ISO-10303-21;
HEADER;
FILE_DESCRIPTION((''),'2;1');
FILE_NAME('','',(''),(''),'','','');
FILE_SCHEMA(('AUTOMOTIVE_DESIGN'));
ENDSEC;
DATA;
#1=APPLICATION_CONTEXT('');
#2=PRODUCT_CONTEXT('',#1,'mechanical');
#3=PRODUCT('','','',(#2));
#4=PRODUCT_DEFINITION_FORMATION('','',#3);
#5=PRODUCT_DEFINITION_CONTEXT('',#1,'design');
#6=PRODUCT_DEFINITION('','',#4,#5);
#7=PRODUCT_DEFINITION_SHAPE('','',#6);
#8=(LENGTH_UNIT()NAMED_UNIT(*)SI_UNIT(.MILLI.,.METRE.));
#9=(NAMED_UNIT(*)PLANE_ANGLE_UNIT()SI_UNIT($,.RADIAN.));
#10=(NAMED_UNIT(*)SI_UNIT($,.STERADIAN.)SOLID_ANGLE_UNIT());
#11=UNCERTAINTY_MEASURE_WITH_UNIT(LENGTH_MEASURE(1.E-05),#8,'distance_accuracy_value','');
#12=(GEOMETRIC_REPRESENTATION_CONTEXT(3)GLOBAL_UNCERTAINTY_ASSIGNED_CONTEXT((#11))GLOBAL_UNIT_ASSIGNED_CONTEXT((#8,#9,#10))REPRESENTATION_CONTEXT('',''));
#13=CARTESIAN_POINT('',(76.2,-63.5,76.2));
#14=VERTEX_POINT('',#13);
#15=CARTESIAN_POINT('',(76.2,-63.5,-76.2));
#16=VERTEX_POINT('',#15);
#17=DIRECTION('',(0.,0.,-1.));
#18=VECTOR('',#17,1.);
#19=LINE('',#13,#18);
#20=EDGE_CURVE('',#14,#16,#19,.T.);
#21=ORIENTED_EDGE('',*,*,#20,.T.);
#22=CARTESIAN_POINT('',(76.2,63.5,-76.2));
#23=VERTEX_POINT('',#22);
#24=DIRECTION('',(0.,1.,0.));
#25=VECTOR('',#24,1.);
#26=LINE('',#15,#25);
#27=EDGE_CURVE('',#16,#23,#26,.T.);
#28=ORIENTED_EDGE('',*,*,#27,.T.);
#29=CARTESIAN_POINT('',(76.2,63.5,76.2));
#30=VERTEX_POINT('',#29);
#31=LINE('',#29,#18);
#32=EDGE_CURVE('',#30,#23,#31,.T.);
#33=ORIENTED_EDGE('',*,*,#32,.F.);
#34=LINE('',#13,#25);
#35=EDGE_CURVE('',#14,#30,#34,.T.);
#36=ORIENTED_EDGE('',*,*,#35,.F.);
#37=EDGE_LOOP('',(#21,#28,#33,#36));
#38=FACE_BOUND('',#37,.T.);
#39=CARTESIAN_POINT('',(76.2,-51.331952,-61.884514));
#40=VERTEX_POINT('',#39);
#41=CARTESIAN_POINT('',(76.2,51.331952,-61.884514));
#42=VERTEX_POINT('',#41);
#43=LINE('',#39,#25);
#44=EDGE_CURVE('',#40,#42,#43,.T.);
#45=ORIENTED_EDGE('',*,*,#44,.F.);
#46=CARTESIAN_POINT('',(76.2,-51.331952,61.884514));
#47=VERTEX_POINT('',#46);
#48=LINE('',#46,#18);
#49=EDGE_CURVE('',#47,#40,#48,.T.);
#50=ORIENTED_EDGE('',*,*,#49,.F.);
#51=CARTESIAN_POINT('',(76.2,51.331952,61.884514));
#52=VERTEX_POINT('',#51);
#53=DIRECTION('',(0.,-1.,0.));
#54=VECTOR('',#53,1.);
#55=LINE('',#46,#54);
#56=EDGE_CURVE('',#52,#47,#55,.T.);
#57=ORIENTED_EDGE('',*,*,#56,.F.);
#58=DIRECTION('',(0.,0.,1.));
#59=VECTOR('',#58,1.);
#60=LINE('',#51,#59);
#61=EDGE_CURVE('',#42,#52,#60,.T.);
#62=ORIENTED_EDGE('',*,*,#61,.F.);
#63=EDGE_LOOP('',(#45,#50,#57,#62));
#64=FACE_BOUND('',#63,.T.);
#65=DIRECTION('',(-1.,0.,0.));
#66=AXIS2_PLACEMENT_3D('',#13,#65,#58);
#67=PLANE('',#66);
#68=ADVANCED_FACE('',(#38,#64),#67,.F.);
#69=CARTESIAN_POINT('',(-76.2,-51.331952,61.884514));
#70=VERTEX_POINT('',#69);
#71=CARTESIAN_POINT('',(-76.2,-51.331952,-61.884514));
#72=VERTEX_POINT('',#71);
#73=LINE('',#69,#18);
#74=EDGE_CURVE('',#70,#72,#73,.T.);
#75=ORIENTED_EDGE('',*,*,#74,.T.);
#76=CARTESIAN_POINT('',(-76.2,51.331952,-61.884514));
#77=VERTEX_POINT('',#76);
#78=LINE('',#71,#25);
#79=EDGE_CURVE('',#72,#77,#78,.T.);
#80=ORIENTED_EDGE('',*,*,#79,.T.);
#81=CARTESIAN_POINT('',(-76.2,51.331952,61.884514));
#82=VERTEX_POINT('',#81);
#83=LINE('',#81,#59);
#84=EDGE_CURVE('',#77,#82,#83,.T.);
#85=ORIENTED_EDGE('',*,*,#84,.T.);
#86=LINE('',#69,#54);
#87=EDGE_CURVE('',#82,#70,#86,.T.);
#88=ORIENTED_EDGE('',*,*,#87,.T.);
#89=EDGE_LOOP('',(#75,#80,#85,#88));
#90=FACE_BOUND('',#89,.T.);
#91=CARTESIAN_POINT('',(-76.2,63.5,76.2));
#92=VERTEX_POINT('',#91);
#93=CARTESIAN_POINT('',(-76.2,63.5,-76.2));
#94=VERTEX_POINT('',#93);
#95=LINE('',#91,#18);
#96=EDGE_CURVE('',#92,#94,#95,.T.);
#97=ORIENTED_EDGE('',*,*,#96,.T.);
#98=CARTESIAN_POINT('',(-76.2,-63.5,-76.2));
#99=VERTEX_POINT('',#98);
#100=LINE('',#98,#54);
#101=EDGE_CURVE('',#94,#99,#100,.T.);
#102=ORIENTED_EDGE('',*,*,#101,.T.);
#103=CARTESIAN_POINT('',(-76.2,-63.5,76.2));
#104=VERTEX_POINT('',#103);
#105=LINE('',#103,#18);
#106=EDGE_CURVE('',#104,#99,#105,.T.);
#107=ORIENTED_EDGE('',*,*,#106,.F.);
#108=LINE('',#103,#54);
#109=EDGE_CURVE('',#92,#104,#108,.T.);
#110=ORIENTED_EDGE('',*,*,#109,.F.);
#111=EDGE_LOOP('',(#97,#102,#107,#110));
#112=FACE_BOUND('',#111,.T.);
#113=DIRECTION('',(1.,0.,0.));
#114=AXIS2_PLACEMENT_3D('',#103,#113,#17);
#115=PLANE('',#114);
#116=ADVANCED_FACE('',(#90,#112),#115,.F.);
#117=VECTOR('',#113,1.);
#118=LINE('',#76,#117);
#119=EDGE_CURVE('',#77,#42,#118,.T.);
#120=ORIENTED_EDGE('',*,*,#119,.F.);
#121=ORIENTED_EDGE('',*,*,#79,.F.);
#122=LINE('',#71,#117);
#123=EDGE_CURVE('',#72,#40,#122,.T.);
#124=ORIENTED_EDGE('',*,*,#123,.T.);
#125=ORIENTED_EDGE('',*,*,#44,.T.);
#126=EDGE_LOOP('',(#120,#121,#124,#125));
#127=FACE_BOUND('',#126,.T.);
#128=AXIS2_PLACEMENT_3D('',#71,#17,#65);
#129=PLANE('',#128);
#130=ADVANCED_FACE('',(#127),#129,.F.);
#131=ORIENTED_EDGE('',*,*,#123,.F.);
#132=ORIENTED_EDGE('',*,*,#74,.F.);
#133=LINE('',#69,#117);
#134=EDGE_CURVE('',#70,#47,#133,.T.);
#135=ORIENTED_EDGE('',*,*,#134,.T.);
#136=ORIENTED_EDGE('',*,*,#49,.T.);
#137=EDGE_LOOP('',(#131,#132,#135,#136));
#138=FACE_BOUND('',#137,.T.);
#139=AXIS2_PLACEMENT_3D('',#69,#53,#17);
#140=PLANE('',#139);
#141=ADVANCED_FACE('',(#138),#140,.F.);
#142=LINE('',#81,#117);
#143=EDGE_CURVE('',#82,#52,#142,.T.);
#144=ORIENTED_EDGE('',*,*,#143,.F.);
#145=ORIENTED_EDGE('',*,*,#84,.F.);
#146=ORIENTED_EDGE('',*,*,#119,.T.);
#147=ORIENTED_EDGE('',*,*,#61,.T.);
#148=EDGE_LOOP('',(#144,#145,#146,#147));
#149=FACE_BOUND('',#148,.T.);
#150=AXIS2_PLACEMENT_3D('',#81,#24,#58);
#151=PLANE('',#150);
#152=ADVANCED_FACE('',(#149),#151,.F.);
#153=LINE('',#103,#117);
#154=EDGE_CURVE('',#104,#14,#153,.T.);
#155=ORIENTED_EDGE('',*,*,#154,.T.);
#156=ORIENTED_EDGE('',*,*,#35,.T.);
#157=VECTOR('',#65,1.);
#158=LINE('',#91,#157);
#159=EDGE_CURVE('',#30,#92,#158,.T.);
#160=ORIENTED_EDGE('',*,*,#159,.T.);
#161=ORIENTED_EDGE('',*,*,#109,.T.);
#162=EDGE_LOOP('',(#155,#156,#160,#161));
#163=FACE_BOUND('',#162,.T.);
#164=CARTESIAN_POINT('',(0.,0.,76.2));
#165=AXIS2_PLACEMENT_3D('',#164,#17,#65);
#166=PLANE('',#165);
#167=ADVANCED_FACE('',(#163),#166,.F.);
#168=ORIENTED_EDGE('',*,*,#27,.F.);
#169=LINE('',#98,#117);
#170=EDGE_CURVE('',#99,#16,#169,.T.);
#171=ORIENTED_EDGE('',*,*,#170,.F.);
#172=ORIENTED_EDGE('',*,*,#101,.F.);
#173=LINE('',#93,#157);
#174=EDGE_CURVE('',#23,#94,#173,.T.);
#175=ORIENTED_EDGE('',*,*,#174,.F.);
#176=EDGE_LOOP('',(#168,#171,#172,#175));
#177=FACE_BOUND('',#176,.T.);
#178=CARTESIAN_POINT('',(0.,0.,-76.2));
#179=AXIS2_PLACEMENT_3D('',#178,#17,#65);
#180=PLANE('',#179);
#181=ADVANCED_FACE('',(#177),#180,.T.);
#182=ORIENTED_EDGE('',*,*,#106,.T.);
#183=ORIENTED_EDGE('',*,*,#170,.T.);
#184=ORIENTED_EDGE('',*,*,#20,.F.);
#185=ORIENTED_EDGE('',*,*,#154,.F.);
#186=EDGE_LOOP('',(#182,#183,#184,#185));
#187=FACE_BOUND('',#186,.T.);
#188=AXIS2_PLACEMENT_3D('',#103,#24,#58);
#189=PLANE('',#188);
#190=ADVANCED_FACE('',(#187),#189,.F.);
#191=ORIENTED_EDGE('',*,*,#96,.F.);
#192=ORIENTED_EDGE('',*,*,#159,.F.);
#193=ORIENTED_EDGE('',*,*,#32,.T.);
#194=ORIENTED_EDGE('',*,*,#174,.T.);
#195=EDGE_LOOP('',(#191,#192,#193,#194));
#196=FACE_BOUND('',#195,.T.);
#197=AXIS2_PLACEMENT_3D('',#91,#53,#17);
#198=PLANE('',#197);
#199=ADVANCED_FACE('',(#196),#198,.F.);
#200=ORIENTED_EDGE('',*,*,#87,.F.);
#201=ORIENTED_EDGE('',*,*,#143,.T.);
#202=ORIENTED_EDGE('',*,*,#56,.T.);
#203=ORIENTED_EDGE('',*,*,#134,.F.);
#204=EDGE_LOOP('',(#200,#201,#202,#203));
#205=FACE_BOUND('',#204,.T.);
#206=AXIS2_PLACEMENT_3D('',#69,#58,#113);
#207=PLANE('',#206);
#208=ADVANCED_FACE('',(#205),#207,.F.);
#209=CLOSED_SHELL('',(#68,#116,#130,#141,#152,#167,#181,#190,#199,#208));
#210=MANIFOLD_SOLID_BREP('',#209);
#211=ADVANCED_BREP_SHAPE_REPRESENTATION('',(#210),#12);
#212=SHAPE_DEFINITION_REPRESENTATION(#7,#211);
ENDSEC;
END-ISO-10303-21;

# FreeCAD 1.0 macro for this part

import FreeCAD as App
import Part
import Sketcher
from FreeCAD import Vector
Q = App.Units.Quantity

doc = App.newDocument("Part")
body = doc.addObject("PartDesign::Body", "Body")

# Sketch on XY plane
sketch1 = doc.addObject("Sketcher::SketchObject", "Sketch")
body.addObject(sketch1)
sketch1.AttachmentSupport = (doc.XY_Plane, [""])
sketch1.MapMode = "FlatFace"
sketch1.addGeometry(Part.LineSegment(Vector(-76, 64, 0), Vector(-76, -64, 0)), False)
sketch1.addGeometry(Part.LineSegment(Vector(-76, -64, 0), Vector(76, -64, 0)), False)
sketch1.addGeometry(Part.LineSegment(Vector(76, -64, 0), Vector(76, 64, 0)), False)
sketch1.addGeometry(Part.LineSegment(Vector(76, 64, 0), Vector(-76, 64, 0)), False)
sketch1.addConstraint(Sketcher.Constraint("Coincident", 0, 2, 1, 1))
sketch1.addConstraint(Sketcher.Constraint("Coincident", 1, 2, 2, 1))
sketch1.addConstraint(Sketcher.Constraint("Coincident", 2, 2, 3, 1))
sketch1.addConstraint(Sketcher.Constraint("Coincident", 3, 2, 0, 1))
sketch1.addConstraint(Sketcher.Constraint("Vertical", 0))
sketch1.addConstraint(Sketcher.Constraint("Horizontal", 1))
sketch1.addConstraint(Sketcher.Constraint("Vertical", 2))
sketch1.addConstraint(Sketcher.Constraint("Horizontal", 3))
sketch1.addConstraint(Sketcher.Constraint("Symmetric", 0, 2, 2, 2, -1, 1))
sketch1.addConstraint(Sketcher.Constraint("DistanceX", 1, 1, 1, 2, Q("6 in")))
sketch1.addConstraint(Sketcher.Constraint("DistanceY", 0, 2, 0, 1, Q("5 in")))
pad1 = doc.addObject("PartDesign::Pad", "Pad")
body.addObject(pad1)
pad1.Profile = sketch1
pad1.Length = Q("6 in")
pad1.Midplane = True

# Sketch on YZ plane
sketch2 = doc.addObject("Sketcher::SketchObject", "Sketch001")
body.addObject(sketch2)
sketch2.AttachmentSupport = (doc.YZ_Plane, [""])
sketch2.MapMode = "FlatFace"
sketch2.AttachmentOffset = App.Placement(Vector(0, 0, 3 * 25.4), App.Rotation())
sketch2.addGeometry(Part.LineSegment(Vector(51, 62, 0), Vector(-51, 62, 0)), False)
sketch2.addGeometry(Part.LineSegment(Vector(-51, 62, 0), Vector(-51, -62, 0)), False)
sketch2.addGeometry(Part.LineSegment(Vector(-51, -62, 0), Vector(51, -62, 0)), False)
sketch2.addGeometry(Part.LineSegment(Vector(51, -62, 0), Vector(51, 62, 0)), False)
sketch2.addConstraint(Sketcher.Constraint("Coincident", 0, 2, 1, 1))
sketch2.addConstraint(Sketcher.Constraint("Coincident", 1, 2, 2, 1))
sketch2.addConstraint(Sketcher.Constraint("Coincident", 2, 2, 3, 1))
sketch2.addConstraint(Sketcher.Constraint("Coincident", 3, 2, 0, 1))
sketch2.addConstraint(Sketcher.Constraint("Horizontal", 0))
sketch2.addConstraint(Sketcher.Constraint("Vertical", 1))
sketch2.addConstraint(Sketcher.Constraint("Horizontal", 2))
sketch2.addConstraint(Sketcher.Constraint("Vertical", 3))
sketch2.addConstraint(Sketcher.Constraint("Symmetric", 0, 2, 2, 2, -1, 1))
sketch2.addConstraint(Sketcher.Constraint("DistanceX", 0, 2, 0, 1, Q("102.663904 mm")))
sketch2.addConstraint(Sketcher.Constraint("DistanceY", 1, 2, 1, 1, Q("123.769028 mm")))
pocket1 = doc.addObject("PartDesign::Pocket", "Pocket")
body.addObject(pocket1)
pocket1.Profile = sketch2
pocket1.Type = "ThroughAll"

doc.recompute()
